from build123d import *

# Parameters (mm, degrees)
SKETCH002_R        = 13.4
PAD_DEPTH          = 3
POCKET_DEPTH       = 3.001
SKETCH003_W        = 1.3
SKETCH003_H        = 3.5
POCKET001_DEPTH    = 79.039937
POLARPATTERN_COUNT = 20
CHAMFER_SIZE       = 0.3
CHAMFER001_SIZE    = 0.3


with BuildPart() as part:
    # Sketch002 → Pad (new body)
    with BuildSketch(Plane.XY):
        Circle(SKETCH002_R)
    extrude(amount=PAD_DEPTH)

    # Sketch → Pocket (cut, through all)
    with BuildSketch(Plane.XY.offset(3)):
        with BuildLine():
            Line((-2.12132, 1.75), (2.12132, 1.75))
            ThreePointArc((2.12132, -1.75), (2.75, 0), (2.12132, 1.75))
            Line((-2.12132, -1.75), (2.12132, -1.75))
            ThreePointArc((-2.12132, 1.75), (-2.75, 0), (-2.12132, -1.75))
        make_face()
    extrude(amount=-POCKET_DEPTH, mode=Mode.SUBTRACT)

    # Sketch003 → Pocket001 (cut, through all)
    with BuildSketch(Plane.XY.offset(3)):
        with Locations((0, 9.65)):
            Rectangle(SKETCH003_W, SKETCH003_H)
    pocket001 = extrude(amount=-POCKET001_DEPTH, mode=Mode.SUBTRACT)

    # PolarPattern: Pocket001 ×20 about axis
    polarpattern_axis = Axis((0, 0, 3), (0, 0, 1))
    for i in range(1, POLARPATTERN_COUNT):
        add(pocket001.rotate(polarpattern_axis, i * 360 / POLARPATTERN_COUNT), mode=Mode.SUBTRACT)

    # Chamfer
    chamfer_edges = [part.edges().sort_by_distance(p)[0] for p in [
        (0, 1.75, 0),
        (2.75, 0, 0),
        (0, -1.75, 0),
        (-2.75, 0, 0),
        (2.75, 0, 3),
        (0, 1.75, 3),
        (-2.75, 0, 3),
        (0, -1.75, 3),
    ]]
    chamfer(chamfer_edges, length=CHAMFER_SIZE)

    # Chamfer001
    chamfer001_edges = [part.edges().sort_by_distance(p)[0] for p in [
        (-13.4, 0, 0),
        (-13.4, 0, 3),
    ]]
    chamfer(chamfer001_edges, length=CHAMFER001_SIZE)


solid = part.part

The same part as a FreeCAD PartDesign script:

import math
import FreeCAD as App
import Part
import Sketcher
from FreeCAD import Vector


def edges_at(feature, points):
    """Names of the edges that pass closest to the given points."""
    edges = feature.Shape.Edges
    near = lambda p: min(range(len(edges)), key=lambda i: edges[i].distToShape(Part.Vertex(*p))[0])
    return sorted({f"Edge{near(p) + 1}" for p in points})


def add_polygon(sketch, points):
    """Adds a closed chain of lines whose ends are joined by coincident constraints."""
    first, n = sketch.GeometryCount, len(points)
    for a, b in zip(points, points[1:] + points[:1]):
        sketch.addGeometry(Part.LineSegment(App.Vector(*a, 0), App.Vector(*b, 0)), False)
    for i in range(n):
        sketch.addConstraint(Sketcher.Constraint("Coincident", first + i, 2, first + (i + 1) % n, 1))

doc = App.newDocument("Part")
body = doc.addObject("PartDesign::Body", "Body")

# Sketch on XY plane
sketch1 = body.newObject("Sketcher::SketchObject", "Sketch")
sketch1.AttachmentSupport = (doc.getObject("XY_Plane"), [""])
sketch1.MapMode = "FlatFace"
sketch1.addGeometry(Part.Circle(Vector(0, 0, 0), Vector(0, 0, 1), 13.4), False)
sketch1.addConstraint([
    Sketcher.Constraint("Coincident", 0, 3, -1, 1),
    Sketcher.Constraint("Diameter", 0, 26.8),
])
pad1 = body.newObject("PartDesign::Pad", "Pad")
pad1.Profile = sketch1
pad1.Length = 3

# Sketch on XY plane
sketch2 = body.newObject("Sketcher::SketchObject", "Sketch001")
sketch2.AttachmentSupport = (doc.getObject("XY_Plane"), [""])
sketch2.MapMode = "FlatFace"
sketch2.AttachmentOffset = App.Placement(Vector(0, 0, 3), App.Rotation())
sketch2.addGeometry([
    Part.LineSegment(Vector(2.12132, 1.75, 0), Vector(-2.12132, 1.75, 0)),
    Part.ArcOfCircle(Part.Circle(Vector(-0.000001, 0, 0), Vector(0, 0, 1), 2.749999), math.radians(140.478784), math.radians(219.521216)),
    Part.LineSegment(Vector(-2.12132, -1.75, 0), Vector(2.12132, -1.75, 0)),
    Part.ArcOfCircle(Part.Circle(Vector(0.000001, 0, 0), Vector(0, 0, 1), 2.749999), math.radians(-39.521216), math.radians(39.521216)),
], False)
sketch2.addConstraint([
    Sketcher.Constraint("Coincident", 0, 2, 1, 1),
    Sketcher.Constraint("Coincident", 1, 2, 2, 1),
    Sketcher.Constraint("Coincident", 2, 2, 3, 1),
    Sketcher.Constraint("Coincident", 3, 2, 0, 1),
    Sketcher.Constraint("Horizontal", 0),
    Sketcher.Constraint("Horizontal", 2),
    Sketcher.Constraint("Coincident", 1, 3, -1, 1),
    Sketcher.Constraint("Coincident", 3, 3, -1, 1),
    Sketcher.Constraint("Equal", 1, 3),
    Sketcher.Constraint("Vertical", 0, 2, 1, 2),
    Sketcher.Constraint("Radius", 1, 2.749999),
    Sketcher.Constraint("DistanceY", 1, 2, 0, 2, 3.5),
])
pocket1 = body.newObject("PartDesign::Pocket", "Pocket")
pocket1.Profile = sketch2
pocket1.Type = "ThroughAll"

# Sketch on XY plane
sketch3 = body.newObject("Sketcher::SketchObject", "Sketch002")
sketch3.AttachmentSupport = (doc.getObject("XY_Plane"), [""])
sketch3.MapMode = "FlatFace"
sketch3.AttachmentOffset = App.Placement(Vector(0, 0, 3), App.Rotation())
add_polygon(sketch3, [(-0.65, 11.4), (-0.65, 7.9), (0.65, 7.9), (0.65, 11.4)])  # lines 0-3
sketch3.addConstraint([
    Sketcher.Constraint("Vertical", 0),
    Sketcher.Constraint("Horizontal", 1),
    Sketcher.Constraint("Vertical", 2),
    Sketcher.Constraint("Horizontal", 3),
    Sketcher.Constraint("DistanceX", 1, 1, 1, 2, 1.3),
    Sketcher.Constraint("DistanceY", 0, 2, 0, 1, 3.5),
    Sketcher.Constraint("DistanceY", -1, 1, 0, 2, 7.9),
    Sketcher.Constraint("DistanceX", 0, 2, -1, 1, 0.65),
])
pocket2 = body.newObject("PartDesign::Pocket", "Pocket001")
pocket2.Profile = sketch3
pocket2.Type = "ThroughAll"
doc.recompute()

polarpattern = body.newObject("PartDesign::PolarPattern", "PolarPattern")
polarpattern.Originals = [pocket2]
polarpattern.Axis = (doc.getObject("Z_Axis"), [""])
polarpattern.Angle = 360
polarpattern.Occurrences = 20
body.Tip = polarpattern
doc.recompute()

chamfer = body.newObject("PartDesign::Chamfer", "Chamfer")
chamfer.Base = (polarpattern, edges_at(polarpattern, [
    (0, 1.75, 0),
    (2.75, 0, 0),
    (0, -1.75, 0),
    (-2.75, 0, 0),
    (2.75, 0, 3),
    (0, 1.75, 3),
    (-2.75, 0, 3),
    (0, -1.75, 3),
]))
chamfer.Size = 0.3
doc.recompute()

chamfer2 = body.newObject("PartDesign::Chamfer", "Chamfer001")
chamfer2.Base = (chamfer, edges_at(chamfer, [(-13.4, 0, 0), (-13.4, 0, 3)]))
chamfer2.Size = 0.3

doc.recompute()
